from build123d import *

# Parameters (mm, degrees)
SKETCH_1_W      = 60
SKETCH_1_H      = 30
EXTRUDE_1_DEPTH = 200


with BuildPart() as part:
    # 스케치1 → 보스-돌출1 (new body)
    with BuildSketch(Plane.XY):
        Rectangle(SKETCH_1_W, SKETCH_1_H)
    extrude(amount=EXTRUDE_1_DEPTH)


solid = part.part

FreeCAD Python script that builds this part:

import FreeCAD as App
import Part
import Sketcher
from FreeCAD import Vector


def add_polygon(sketch, points):
    """Adds a closed chain of lines whose ends are joined by coincident constraints."""
    first, n = sketch.GeometryCount, len(points)
    for a, b in zip(points, points[1:] + points[:1]):
        sketch.addGeometry(Part.LineSegment(App.Vector(*a, 0), App.Vector(*b, 0)), False)
    for i in range(n):
        sketch.addConstraint(Sketcher.Constraint("Coincident", first + i, 2, first + (i + 1) % n, 1))

doc = App.newDocument("Part")
body = doc.addObject("PartDesign::Body", "Body")

sketch1 = doc.addObject("Sketcher::SketchObject", "Sketch")
body.addObject(sketch1)
sketch1.AttachmentSupport = (doc.XY_Plane, [""])
sketch1.MapMode = "FlatFace"
add_polygon(sketch1, [(-30, 15), (-30, -15), (30, -15), (30, 15)])
sketch1.addConstraint([
    Sketcher.Constraint("Vertical", 0),
    Sketcher.Constraint("Horizontal", 1),
    Sketcher.Constraint("Vertical", 2),
    Sketcher.Constraint("Horizontal", 3),
    Sketcher.Constraint("Symmetric", 0, 2, 2, 2, -1, 1),
    Sketcher.Constraint("DistanceX", 1, 1, 1, 2, 60.0),
    Sketcher.Constraint("DistanceY", 0, 2, 0, 1, 30.0),
])
pad1 = doc.addObject("PartDesign::Pad", "Pad")
body.addObject(pad1)
pad1.Profile = sketch1
pad1.Length = 200

doc.recompute()
